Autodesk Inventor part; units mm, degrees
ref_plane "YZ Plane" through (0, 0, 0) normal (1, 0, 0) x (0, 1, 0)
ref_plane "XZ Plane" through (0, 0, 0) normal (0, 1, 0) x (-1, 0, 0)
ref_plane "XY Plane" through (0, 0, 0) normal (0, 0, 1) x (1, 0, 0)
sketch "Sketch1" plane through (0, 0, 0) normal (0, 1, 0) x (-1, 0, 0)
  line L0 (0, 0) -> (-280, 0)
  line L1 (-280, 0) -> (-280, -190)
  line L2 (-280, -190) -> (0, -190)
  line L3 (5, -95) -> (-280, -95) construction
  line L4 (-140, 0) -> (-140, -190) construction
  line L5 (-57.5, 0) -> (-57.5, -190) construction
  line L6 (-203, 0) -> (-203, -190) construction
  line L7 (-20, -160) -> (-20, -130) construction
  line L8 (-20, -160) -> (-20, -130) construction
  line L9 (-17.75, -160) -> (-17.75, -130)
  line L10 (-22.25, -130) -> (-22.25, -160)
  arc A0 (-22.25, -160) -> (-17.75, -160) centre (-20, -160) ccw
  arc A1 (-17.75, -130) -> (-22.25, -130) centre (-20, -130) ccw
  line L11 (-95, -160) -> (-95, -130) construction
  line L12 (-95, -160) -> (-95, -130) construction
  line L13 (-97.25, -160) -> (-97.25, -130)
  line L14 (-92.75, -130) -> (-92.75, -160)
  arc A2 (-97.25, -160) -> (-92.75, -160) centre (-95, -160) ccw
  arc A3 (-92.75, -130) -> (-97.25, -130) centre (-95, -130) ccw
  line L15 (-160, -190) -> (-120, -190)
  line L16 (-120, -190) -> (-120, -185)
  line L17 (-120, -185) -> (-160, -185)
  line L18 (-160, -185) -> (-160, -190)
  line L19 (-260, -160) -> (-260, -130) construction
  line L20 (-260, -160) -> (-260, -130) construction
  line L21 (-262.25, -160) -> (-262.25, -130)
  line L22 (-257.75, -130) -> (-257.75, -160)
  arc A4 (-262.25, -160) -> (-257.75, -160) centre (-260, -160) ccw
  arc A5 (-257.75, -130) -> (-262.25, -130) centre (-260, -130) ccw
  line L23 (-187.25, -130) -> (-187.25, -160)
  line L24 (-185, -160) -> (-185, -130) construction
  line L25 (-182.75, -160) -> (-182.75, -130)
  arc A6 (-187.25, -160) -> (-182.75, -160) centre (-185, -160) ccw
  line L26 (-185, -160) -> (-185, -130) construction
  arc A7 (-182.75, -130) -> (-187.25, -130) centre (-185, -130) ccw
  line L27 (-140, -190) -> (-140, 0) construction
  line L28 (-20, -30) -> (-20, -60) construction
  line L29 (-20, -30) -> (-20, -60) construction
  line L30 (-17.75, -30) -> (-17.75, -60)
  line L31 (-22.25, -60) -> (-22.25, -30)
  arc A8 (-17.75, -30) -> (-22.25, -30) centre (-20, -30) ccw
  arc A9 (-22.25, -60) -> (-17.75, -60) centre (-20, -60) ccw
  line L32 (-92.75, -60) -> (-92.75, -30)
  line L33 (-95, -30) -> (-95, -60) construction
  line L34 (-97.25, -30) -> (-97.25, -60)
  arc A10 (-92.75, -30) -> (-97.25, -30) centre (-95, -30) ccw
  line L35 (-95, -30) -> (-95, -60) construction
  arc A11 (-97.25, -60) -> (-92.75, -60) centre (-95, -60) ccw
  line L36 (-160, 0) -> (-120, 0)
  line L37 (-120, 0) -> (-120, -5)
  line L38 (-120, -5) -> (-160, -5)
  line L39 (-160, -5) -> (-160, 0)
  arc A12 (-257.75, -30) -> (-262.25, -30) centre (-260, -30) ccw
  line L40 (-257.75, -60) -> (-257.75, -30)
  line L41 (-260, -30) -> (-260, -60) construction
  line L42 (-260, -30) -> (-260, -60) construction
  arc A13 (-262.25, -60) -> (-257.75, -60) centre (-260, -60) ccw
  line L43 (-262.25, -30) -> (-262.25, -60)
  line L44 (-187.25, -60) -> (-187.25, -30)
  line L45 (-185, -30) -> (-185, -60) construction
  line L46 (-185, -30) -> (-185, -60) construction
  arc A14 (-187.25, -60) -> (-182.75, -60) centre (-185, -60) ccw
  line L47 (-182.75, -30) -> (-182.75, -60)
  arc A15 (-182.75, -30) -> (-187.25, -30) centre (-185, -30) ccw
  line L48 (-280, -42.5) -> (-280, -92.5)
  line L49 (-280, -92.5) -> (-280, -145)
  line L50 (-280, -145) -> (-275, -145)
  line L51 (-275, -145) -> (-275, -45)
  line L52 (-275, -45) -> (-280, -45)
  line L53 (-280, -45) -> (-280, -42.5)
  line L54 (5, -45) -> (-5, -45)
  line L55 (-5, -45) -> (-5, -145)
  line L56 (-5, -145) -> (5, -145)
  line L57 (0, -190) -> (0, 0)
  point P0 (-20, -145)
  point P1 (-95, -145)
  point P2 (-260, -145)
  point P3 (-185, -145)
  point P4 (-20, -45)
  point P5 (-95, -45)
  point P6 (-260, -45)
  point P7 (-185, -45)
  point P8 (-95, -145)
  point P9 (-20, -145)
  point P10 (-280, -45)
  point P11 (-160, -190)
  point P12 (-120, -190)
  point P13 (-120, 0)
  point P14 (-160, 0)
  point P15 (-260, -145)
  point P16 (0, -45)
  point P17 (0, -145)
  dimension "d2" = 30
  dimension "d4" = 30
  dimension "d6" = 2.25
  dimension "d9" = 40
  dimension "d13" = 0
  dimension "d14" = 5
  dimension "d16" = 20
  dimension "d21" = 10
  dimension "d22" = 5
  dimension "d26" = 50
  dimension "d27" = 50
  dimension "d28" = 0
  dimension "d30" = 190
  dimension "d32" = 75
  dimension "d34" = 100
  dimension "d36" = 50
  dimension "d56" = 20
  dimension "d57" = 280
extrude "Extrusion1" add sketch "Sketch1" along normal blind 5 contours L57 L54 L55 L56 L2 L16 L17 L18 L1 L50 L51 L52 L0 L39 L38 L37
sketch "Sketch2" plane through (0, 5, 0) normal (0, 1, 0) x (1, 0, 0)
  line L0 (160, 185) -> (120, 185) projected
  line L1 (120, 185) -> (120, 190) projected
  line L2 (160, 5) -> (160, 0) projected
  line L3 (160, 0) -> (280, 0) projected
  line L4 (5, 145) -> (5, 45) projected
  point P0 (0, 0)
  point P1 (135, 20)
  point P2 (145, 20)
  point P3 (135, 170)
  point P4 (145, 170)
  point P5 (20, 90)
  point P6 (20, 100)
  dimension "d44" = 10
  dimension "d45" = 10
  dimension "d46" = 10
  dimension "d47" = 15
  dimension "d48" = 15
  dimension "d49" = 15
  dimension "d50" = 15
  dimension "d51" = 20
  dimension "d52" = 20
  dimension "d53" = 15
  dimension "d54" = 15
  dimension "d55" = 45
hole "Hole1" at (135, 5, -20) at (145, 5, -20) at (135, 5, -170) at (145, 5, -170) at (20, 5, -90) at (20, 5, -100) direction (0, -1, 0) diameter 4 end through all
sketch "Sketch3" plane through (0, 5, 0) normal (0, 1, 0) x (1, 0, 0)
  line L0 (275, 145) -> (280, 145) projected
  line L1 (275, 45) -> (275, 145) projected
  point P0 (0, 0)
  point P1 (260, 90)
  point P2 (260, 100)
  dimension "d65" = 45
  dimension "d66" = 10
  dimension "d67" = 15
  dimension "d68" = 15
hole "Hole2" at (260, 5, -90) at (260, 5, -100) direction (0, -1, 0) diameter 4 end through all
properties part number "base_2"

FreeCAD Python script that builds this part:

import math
import FreeCAD as App
import Part
import Sketcher

V = App.Vector


def add_polygon(sketch, points):
    """Adds a closed chain of lines whose ends are joined by coincident constraints."""
    first, n = sketch.GeometryCount, len(points)
    for a, b in zip(points, points[1:] + points[:1]):
        sketch.addGeometry(Part.LineSegment(App.Vector(*a, 0), App.Vector(*b, 0)), False)
    for i in range(n):
        sketch.addConstraint(Sketcher.Constraint("Coincident", first + i, 2, first + (i + 1) % n, 1))

doc = App.newDocument("Part")
params = doc.addObject("Spreadsheet::Sheet", "Params")
for row, (alias, value) in enumerate([
    ("sketch1_width", "40 mm"),
    ("sketch1_width2", "5 mm"),
    ("sketch1_height", "100 mm"),
    ("sketch1_height2", "30 mm"),
    ("sketch1_radius", "2.25 mm"),
    ("pad1_length", "5 mm"),
    ("sketch2_diameter", "4 mm"),
    ("hole_diameter", "4 mm"),
    ("sketch3_diameter", "4 mm"),
    ("hole2_diameter", "4 mm"),
], start=1):
    params.set(f"A{row}", alias)
    params.set(f"B{row}", "=" + value)
    params.setAlias(f"B{row}", alias)

body = doc.addObject("PartDesign::Body", "Body")

# Sketch on XZ plane
sketch1 = body.newObject("Sketcher::SketchObject", "Sketch")
sketch1.AttachmentSupport = (doc.getObject("XZ_Plane"), [""])
sketch1.MapMode = "FlatFace"
add_polygon(sketch1, [(0, -45), (0, 0), (120, 0), (120, -5), (160, -5), (160, 0), (280, 0), (280, -45), (275, -45), (275, -145), (280, -145), (280, -190), (160, -190), (160, -185), (120, -185), (120, -190), (0, -190), (0, -145), (5, -145), (5, -45)])  # lines 0-19
sketch1.addGeometry(Part.ArcOfCircle(Part.Circle(V(260, -160, 0), V(0, 0, 1), 2.2), math.radians(180), math.radians(360)), False)  # 20
sketch1.addGeometry(Part.LineSegment(V(262.2, -160, 0), V(262.2, -130, 0)), False)  # 21
sketch1.addGeometry(Part.ArcOfCircle(Part.Circle(V(260, -130, 0), V(0, 0, 1), 2.2), math.radians(0), math.radians(180)), False)  # 22
sketch1.addGeometry(Part.LineSegment(V(257.8, -130, 0), V(257.8, -160, 0)), False)  # 23
sketch1.addGeometry(Part.LineSegment(V(187.2, -160, 0), V(187.2, -130, 0)), False)  # 24
sketch1.addGeometry(Part.ArcOfCircle(Part.Circle(V(185, -130, 0), V(0, 0, 1), 2.2), math.radians(0), math.radians(180)), False)  # 25
sketch1.addGeometry(Part.LineSegment(V(182.8, -130, 0), V(182.8, -160, 0)), False)  # 26
sketch1.addGeometry(Part.ArcOfCircle(Part.Circle(V(185, -160, 0), V(0, 0, 1), 2.2), math.radians(180), math.radians(360)), False)  # 27
sketch1.addGeometry(Part.ArcOfCircle(Part.Circle(V(95, -160, 0), V(0, 0, 1), 2.2), math.radians(180), math.radians(360)), False)  # 28
sketch1.addGeometry(Part.LineSegment(V(97.2, -160, 0), V(97.2, -130, 0)), False)  # 29
sketch1.addGeometry(Part.ArcOfCircle(Part.Circle(V(95, -130, 0), V(0, 0, 1), 2.2), math.radians(0), math.radians(180)), False)  # 30
sketch1.addGeometry(Part.LineSegment(V(92.8, -130, 0), V(92.8, -160, 0)), False)  # 31
sketch1.addGeometry(Part.LineSegment(V(17.8, -130, 0), V(17.8, -160, 0)), False)  # 32
sketch1.addGeometry(Part.ArcOfCircle(Part.Circle(V(20, -160, 0), V(0, 0, 1), 2.2), math.radians(180), math.radians(360)), False)  # 33
sketch1.addGeometry(Part.LineSegment(V(22.2, -160, 0), V(22.2, -130, 0)), False)  # 34
sketch1.addGeometry(Part.ArcOfCircle(Part.Circle(V(20, -130, 0), V(0, 0, 1), 2.2), math.radians(0), math.radians(180)), False)  # 35
sketch1.addGeometry(Part.ArcOfCircle(Part.Circle(V(260, -30, 0), V(0, 0, 1), 2.2), math.radians(0), math.radians(180)), False)  # 36
sketch1.addGeometry(Part.LineSegment(V(257.8, -30, 0), V(257.8, -60, 0)), False)  # 37
sketch1.addGeometry(Part.ArcOfCircle(Part.Circle(V(260, -60, 0), V(0, 0, 1), 2.2), math.radians(180), math.radians(360)), False)  # 38
sketch1.addGeometry(Part.LineSegment(V(262.2, -60, 0), V(262.2, -30, 0)), False)  # 39
sketch1.addGeometry(Part.ArcOfCircle(Part.Circle(V(185, -60, 0), V(0, 0, 1), 2.2), math.radians(180), math.radians(360)), False)  # 40
sketch1.addGeometry(Part.LineSegment(V(187.2, -60, 0), V(187.2, -30, 0)), False)  # 41
sketch1.addGeometry(Part.ArcOfCircle(Part.Circle(V(185, -30, 0), V(0, 0, 1), 2.2), math.radians(0), math.radians(180)), False)  # 42
sketch1.addGeometry(Part.LineSegment(V(182.8, -30, 0), V(182.8, -60, 0)), False)  # 43
sketch1.addGeometry(Part.LineSegment(V(92.8, -30, 0), V(92.8, -60, 0)), False)  # 44
sketch1.addGeometry(Part.ArcOfCircle(Part.Circle(V(95, -60, 0), V(0, 0, 1), 2.2), math.radians(180), math.radians(360)), False)  # 45
sketch1.addGeometry(Part.LineSegment(V(97.2, -60, 0), V(97.2, -30, 0)), False)  # 46
sketch1.addGeometry(Part.ArcOfCircle(Part.Circle(V(95, -30, 0), V(0, 0, 1), 2.2), math.radians(0), math.radians(180)), False)  # 47
sketch1.addGeometry(Part.ArcOfCircle(Part.Circle(V(20, -30, 0), V(0, 0, 1), 2.2), math.radians(0), math.radians(180)), False)  # 48
sketch1.addGeometry(Part.LineSegment(V(17.8, -30, 0), V(17.8, -60, 0)), False)  # 49
sketch1.addGeometry(Part.ArcOfCircle(Part.Circle(V(20, -60, 0), V(0, 0, 1), 2.2), math.radians(180), math.radians(360)), False)  # 50
sketch1.addGeometry(Part.LineSegment(V(22.2, -60, 0), V(22.2, -30, 0)), False)  # 51
sketch1.addConstraint([
    Sketcher.Constraint("Tangent", 20, 2, 21, 1),
    Sketcher.Constraint("Tangent", 21, 2, 22, 1),
    Sketcher.Constraint("Tangent", 22, 2, 23, 1),
    Sketcher.Constraint("Tangent", 23, 2, 20, 1),
    Sketcher.Constraint("Tangent", 24, 2, 25, 1),
    Sketcher.Constraint("Tangent", 25, 2, 26, 1),
    Sketcher.Constraint("Tangent", 26, 2, 27, 1),
    Sketcher.Constraint("Tangent", 27, 2, 24, 1),
    Sketcher.Constraint("Tangent", 28, 2, 29, 1),
    Sketcher.Constraint("Tangent", 29, 2, 30, 1),
    Sketcher.Constraint("Tangent", 30, 2, 31, 1),
    Sketcher.Constraint("Tangent", 31, 2, 28, 1),
    Sketcher.Constraint("Tangent", 32, 2, 33, 1),
    Sketcher.Constraint("Tangent", 33, 2, 34, 1),
    Sketcher.Constraint("Tangent", 34, 2, 35, 1),
    Sketcher.Constraint("Tangent", 35, 2, 32, 1),
    Sketcher.Constraint("Tangent", 36, 2, 37, 1),
    Sketcher.Constraint("Tangent", 37, 2, 38, 1),
    Sketcher.Constraint("Tangent", 38, 2, 39, 1),
    Sketcher.Constraint("Tangent", 39, 2, 36, 1),
    Sketcher.Constraint("Tangent", 40, 2, 41, 1),
    Sketcher.Constraint("Tangent", 41, 2, 42, 1),
    Sketcher.Constraint("Tangent", 42, 2, 43, 1),
    Sketcher.Constraint("Tangent", 43, 2, 40, 1),
    Sketcher.Constraint("Tangent", 44, 2, 45, 1),
    Sketcher.Constraint("Tangent", 45, 2, 46, 1),
    Sketcher.Constraint("Tangent", 46, 2, 47, 1),
    Sketcher.Constraint("Tangent", 47, 2, 44, 1),
    Sketcher.Constraint("Tangent", 48, 2, 49, 1),
    Sketcher.Constraint("Tangent", 49, 2, 50, 1),
    Sketcher.Constraint("Tangent", 50, 2, 51, 1),
    Sketcher.Constraint("Tangent", 51, 2, 48, 1),
    Sketcher.Constraint("Vertical", 0),
    Sketcher.Constraint("Horizontal", 1),
    Sketcher.Constraint("Vertical", 2),
    Sketcher.Constraint("Horizontal", 3),
    Sketcher.Constraint("Vertical", 4),
    Sketcher.Constraint("Horizontal", 5),
    Sketcher.Constraint("Vertical", 6),
    Sketcher.Constraint("Horizontal", 7),
    Sketcher.Constraint("Vertical", 8),
    Sketcher.Constraint("Horizontal", 9),
    Sketcher.Constraint("Vertical", 10),
    Sketcher.Constraint("Horizontal", 11),
    Sketcher.Constraint("Vertical", 12),
    Sketcher.Constraint("Horizontal", 13),
    Sketcher.Constraint("Vertical", 14),
    Sketcher.Constraint("Horizontal", 15),
    Sketcher.Constraint("Vertical", 16),
    Sketcher.Constraint("Horizontal", 17),
    Sketcher.Constraint("Vertical", 18),
    Sketcher.Constraint("Horizontal", 19),
    Sketcher.Constraint("Vertical", 21),
    Sketcher.Constraint("Vertical", 23),
    Sketcher.Constraint("Vertical", 24),
    Sketcher.Constraint("Vertical", 26),
    Sketcher.Constraint("Vertical", 29),
    Sketcher.Constraint("Vertical", 31),
    Sketcher.Constraint("Vertical", 32),
    Sketcher.Constraint("Vertical", 34),
    Sketcher.Constraint("Vertical", 37),
    Sketcher.Constraint("Vertical", 39),
    Sketcher.Constraint("Vertical", 41),
    Sketcher.Constraint("Vertical", 43),
    Sketcher.Constraint("Vertical", 44),
    Sketcher.Constraint("Vertical", 46),
    Sketcher.Constraint("Vertical", 49),
    Sketcher.Constraint("Vertical", 51),
    Sketcher.Constraint("Coincident", 0, 2, -1, 1),
    Sketcher.Constraint("Equal", 22, 25),
    Sketcher.Constraint("Equal", 27, 28),
    Sketcher.Constraint("Equal", 30, 33),
    Sketcher.Constraint("Equal", 35, 36),
    Sketcher.Constraint("Equal", 38, 40),
    Sketcher.Constraint("Equal", 42, 45),
    Sketcher.Constraint("Equal", 47, 48),
    Sketcher.Constraint("PointOnObject", 4, 2, -1),
    Sketcher.Constraint("PointOnObject", 15, 2, -2),
    Sketcher.Constraint("Horizontal", 22, 3, 25, 3),
    Sketcher.Constraint("Horizontal", 20, 3, 27, 3),
    Sketcher.Constraint("Horizontal", 27, 3, 28, 3),
    Sketcher.Constraint("Horizontal", 25, 3, 30, 3),
    Sketcher.Constraint("Horizontal", 28, 3, 33, 3),
    Sketcher.Constraint("Horizontal", 30, 3, 35, 3),
    Sketcher.Constraint("Horizontal", 38, 3, 40, 3),
    Sketcher.Constraint("Horizontal", 36, 3, 42, 3),
    Sketcher.Constraint("Horizontal", 40, 3, 45, 3),
    Sketcher.Constraint("Horizontal", 42, 3, 47, 3),
    Sketcher.Constraint("Horizontal", 47, 3, 48, 3),
    Sketcher.Constraint("Horizontal", 45, 3, 50, 3),
    Sketcher.Constraint("Horizontal", 11, 2, 14, 2),
    Sketcher.Constraint("Horizontal", 9, 2, 16, 2),
    Sketcher.Constraint("Horizontal", 7, 2, 18, 2),
    Sketcher.Constraint("Vertical", 22, 3, 36, 3),
    Sketcher.Constraint("Vertical", 27, 3, 40, 3),
    Sketcher.Constraint("Vertical", 30, 3, 45, 3),
    Sketcher.Constraint("Vertical", 35, 3, 48, 3),
    Sketcher.Constraint("Vertical", 6, 2, 9, 2),
    Sketcher.Constraint("Vertical", 4, 2, 11, 2),
    Sketcher.Constraint("Vertical", 2, 2, 13, 2),
    Sketcher.Constraint("Equal", 1, 5),
    Sketcher.Constraint("Equal", 9, 17),
    Sketcher.Constraint("Equal", 19, 2),
    Sketcher.Constraint("Equal", 6, 10),
    Sketcher.Constraint("Equal", 4, 12),
    Sketcher.Constraint("Equal", 34, 37),
    Sketcher.Constraint("DistanceX", 3, 1, 3, 2, 40.0),
    Sketcher.Constraint("DistanceX", 7, 2, 7, 1, 5.0),
    Sketcher.Constraint("DistanceY", 8, 2, 8, 1, 100.0),
    Sketcher.Constraint("DistanceY", 21, 1, 21, 2, 30.0),
    Sketcher.Constraint("Radius", 20, 2.25),
    Sketcher.Constraint("DistanceX", -1, 1, 33, 3, 20.0),
    Sketcher.Constraint("DistanceY", 36, 3, -1, 1, 30.0),
    Sketcher.Constraint("DistanceX", -1, 1, 5, 2, 280.0),
    Sketcher.Constraint("DistanceY", 10, 2, -1, 1, 190.0),
    Sketcher.Constraint("DistanceX", -1, 1, 20, 3, 260.0),
    Sketcher.Constraint("DistanceY", 20, 3, -1, 1, 160.0),
    Sketcher.Constraint("DistanceX", -1, 1, 25, 3, 185.0),
    Sketcher.Constraint("DistanceX", -1, 1, 28, 3, 95.0),
])
sketch1.setExpression("Constraints[126]", "Params.sketch1_width")
sketch1.setExpression("Constraints[127]", "Params.sketch1_width2")
sketch1.setExpression("Constraints[128]", "Params.sketch1_height")
sketch1.setExpression("Constraints[129]", "Params.sketch1_height2")
sketch1.setExpression("Constraints[130]", "Params.sketch1_radius")
pad1 = body.newObject("PartDesign::Pad", "Pad")
pad1.Profile = sketch1
pad1.setExpression("Length", "Params.pad1_length")
pad1.Reversed = True

# Sketch on XZ plane
sketch2 = body.newObject("Sketcher::SketchObject", "Sketch001")
sketch2.AttachmentSupport = (doc.getObject("XZ_Plane"), [""])
sketch2.MapMode = "FlatFace"
sketch2.AttachmentOffset = App.Placement(V(0, 0, -5), App.Rotation())
sketch2.addGeometry([
    Part.Circle(V(135, -20, 0), V(0, 0, 1), 2),  # 0
    Part.Circle(V(145, -20, 0), V(0, 0, 1), 2),  # 1
    Part.Circle(V(135, -170, 0), V(0, 0, 1), 2),  # 2
    Part.Circle(V(145, -170, 0), V(0, 0, 1), 2),  # 3
    Part.Circle(V(20, -90, 0), V(0, 0, 1), 2),  # 4
    Part.Circle(V(20, -100, 0), V(0, 0, 1), 2),  # 5
], False)
sketch2.addConstraint([
    Sketcher.Constraint("Equal", 0, 1),
    Sketcher.Constraint("Equal", 1, 2),
    Sketcher.Constraint("Equal", 2, 3),
    Sketcher.Constraint("Equal", 3, 4),
    Sketcher.Constraint("Equal", 4, 5),
    Sketcher.Constraint("Horizontal", 0, 3, 1, 3),
    Sketcher.Constraint("Horizontal", 2, 3, 3, 3),
    Sketcher.Constraint("Vertical", 0, 3, 2, 3),
    Sketcher.Constraint("Vertical", 1, 3, 3, 3),
    Sketcher.Constraint("Vertical", 4, 3, 5, 3),
    Sketcher.Constraint("Diameter", 0, 4.0),
    Sketcher.Constraint("DistanceX", -1, 1, 0, 3, 135.0),
    Sketcher.Constraint("DistanceY", 0, 3, -1, 1, 20.0),
    Sketcher.Constraint("DistanceX", -1, 1, 1, 3, 145.0),
    Sketcher.Constraint("DistanceY", 2, 3, -1, 1, 170.0),
    Sketcher.Constraint("DistanceX", -1, 1, 4, 3, 20.0),
    Sketcher.Constraint("DistanceY", 4, 3, -1, 1, 90.0),
    Sketcher.Constraint("DistanceY", 5, 3, -1, 1, 100.0),
])
sketch2.setExpression("Constraints[10]", "Params.sketch2_diameter")
doc.recompute()
hole = body.newObject("PartDesign::Hole", "Hole")
hole.Profile = sketch2
hole.ThreadType = "None"
hole.setExpression("Diameter", "Params.hole_diameter")
hole.DepthType = "ThroughAll"
hole.Reversed = True

# Sketch on XZ plane
sketch3 = body.newObject("Sketcher::SketchObject", "Sketch002")
sketch3.AttachmentSupport = (doc.getObject("XZ_Plane"), [""])
sketch3.MapMode = "FlatFace"
sketch3.AttachmentOffset = App.Placement(V(0, 0, -5), App.Rotation())
sketch3.addGeometry([
    Part.Circle(V(260, -90, 0), V(0, 0, 1), 2),
    Part.Circle(V(260, -100, 0), V(0, 0, 1), 2),
], False)
sketch3.addConstraint([
    Sketcher.Constraint("Equal", 0, 1),
    Sketcher.Constraint("Vertical", 0, 3, 1, 3),
    Sketcher.Constraint("Diameter", 0, 4.0),
    Sketcher.Constraint("DistanceX", -1, 1, 0, 3, 260.0),
    Sketcher.Constraint("DistanceY", 0, 3, -1, 1, 90.0),
    Sketcher.Constraint("DistanceY", 1, 3, -1, 1, 100.0),
])
sketch3.setExpression("Constraints[2]", "Params.sketch3_diameter")
doc.recompute()
hole2 = body.newObject("PartDesign::Hole", "Hole001")
hole2.Profile = sketch3
hole2.ThreadType = "None"
hole2.setExpression("Diameter", "Params.hole2_diameter")
hole2.DepthType = "ThroughAll"
hole2.Reversed = True

doc.recompute()
